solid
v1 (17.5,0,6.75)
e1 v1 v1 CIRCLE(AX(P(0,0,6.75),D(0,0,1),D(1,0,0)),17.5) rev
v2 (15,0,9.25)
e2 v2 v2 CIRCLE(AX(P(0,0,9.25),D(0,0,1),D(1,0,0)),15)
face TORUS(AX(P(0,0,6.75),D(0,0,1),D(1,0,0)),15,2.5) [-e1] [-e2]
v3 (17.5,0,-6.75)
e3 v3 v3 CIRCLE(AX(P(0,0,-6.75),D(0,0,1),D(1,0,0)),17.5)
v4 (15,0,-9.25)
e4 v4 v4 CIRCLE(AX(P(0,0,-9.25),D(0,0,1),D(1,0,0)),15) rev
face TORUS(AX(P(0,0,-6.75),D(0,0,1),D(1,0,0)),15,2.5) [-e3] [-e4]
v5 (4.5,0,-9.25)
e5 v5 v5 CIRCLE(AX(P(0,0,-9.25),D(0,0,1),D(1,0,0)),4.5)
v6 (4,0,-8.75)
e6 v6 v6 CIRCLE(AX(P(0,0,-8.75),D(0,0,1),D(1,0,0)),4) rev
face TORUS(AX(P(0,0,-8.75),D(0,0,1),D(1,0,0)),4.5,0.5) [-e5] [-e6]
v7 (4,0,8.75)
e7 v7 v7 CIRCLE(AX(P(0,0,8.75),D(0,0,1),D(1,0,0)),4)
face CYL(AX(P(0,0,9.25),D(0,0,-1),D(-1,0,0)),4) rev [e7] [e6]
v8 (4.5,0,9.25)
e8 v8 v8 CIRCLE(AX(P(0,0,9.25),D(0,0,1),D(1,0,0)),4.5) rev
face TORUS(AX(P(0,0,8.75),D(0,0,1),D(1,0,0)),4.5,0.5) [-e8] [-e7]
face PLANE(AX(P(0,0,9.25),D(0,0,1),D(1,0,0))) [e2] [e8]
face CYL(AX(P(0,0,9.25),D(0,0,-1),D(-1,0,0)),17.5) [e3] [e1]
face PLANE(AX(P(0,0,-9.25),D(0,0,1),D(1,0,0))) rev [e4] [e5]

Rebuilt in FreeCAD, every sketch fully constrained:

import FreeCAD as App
import Part
import Sketcher

V = App.Vector
Q = App.Units.Quantity


def edges_at(feature, points):
    """Names of the edges that pass closest to the given points."""
    edges = feature.Shape.Edges
    near = lambda p: min(range(len(edges)), key=lambda i: edges[i].distToShape(Part.Vertex(*p))[0])
    return sorted({f"Edge{near(p) + 1}" for p in points})

doc = App.newDocument("Part")
body = doc.addObject("PartDesign::Body", "Body")

# Sketch on XY plane
sketch1 = body.newObject("Sketcher::SketchObject", "Sketch")
sketch1.AttachmentSupport = (doc.getObject("XY_Plane"), [""])
sketch1.MapMode = "FlatFace"
sketch1.addGeometry([
    Part.Circle(V(0, 0, 0), V(0, 0, 1), 17.5),
    Part.Circle(V(0, 0, 0), V(0, 0, 1), 4),
], False)
sketch1.addConstraint([
    Sketcher.Constraint("Coincident", 0, 3, -1, 1),
    Sketcher.Constraint("Coincident", 1, 3, -1, 1),
    Sketcher.Constraint("Diameter", 0, Q("35 mm")),
    Sketcher.Constraint("Diameter", 1, Q("8 mm")),
])
pad1 = body.newObject("PartDesign::Pad", "Pad")
pad1.Profile = sketch1
pad1.Length = 18.5
pad1.Midplane = True
doc.recompute()

fillet = body.newObject("PartDesign::Fillet", "Fillet")
fillet.Base = (pad1, edges_at(pad1, [(-17.5, 0, -9.25), (-17.5, 0, 9.25)]))
fillet.Radius = 2.5
doc.recompute()

fillet2 = body.newObject("PartDesign::Fillet", "Fillet001")
fillet2.Base = (fillet, edges_at(fillet, [(-4, 0, -9.25), (-4, 0, 9.25)]))
fillet2.Radius = 0.5

doc.recompute()
